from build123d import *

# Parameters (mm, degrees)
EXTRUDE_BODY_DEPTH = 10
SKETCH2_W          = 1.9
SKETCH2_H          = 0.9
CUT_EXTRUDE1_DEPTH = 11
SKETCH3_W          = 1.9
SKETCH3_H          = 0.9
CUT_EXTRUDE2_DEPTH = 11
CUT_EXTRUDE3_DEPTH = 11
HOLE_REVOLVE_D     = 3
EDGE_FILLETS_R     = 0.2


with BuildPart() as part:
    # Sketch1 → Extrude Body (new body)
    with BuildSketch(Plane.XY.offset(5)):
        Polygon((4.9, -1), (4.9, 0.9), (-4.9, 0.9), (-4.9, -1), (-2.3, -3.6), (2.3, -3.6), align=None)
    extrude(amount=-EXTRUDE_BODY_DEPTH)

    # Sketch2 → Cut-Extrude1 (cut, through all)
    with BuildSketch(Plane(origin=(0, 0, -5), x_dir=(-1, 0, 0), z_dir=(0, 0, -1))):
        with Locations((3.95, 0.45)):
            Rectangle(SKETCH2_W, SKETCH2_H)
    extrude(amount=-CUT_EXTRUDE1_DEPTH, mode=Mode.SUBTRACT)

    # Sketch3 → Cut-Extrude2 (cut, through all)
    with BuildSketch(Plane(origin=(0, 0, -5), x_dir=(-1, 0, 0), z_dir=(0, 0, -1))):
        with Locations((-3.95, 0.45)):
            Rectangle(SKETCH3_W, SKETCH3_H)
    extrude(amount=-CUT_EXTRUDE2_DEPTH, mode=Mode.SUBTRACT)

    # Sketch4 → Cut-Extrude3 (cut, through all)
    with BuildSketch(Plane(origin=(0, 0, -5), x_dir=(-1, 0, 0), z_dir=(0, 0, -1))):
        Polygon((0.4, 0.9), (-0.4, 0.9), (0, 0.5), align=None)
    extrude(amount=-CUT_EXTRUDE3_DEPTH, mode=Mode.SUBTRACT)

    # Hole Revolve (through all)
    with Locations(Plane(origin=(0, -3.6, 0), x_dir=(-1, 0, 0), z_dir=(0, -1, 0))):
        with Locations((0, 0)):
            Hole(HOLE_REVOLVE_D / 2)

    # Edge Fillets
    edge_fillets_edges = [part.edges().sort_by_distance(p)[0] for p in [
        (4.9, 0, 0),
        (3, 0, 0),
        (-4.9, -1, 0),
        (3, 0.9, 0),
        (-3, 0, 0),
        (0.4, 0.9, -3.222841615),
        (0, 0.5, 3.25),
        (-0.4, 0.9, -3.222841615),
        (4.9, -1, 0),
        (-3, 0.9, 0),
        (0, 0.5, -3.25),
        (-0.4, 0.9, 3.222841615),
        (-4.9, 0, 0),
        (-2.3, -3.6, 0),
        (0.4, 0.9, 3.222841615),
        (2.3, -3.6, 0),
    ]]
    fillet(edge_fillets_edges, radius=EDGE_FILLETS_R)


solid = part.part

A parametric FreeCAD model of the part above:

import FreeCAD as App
import Part
import Sketcher


def edges_at(feature, points):
    """Names of the edges that pass closest to the given points."""
    edges = feature.Shape.Edges
    near = lambda p: min(range(len(edges)), key=lambda i: edges[i].distToShape(Part.Vertex(*p))[0])
    return sorted({f"Edge{near(p) + 1}" for p in points})

doc = App.newDocument("Part")
body = doc.addObject("PartDesign::Body", "Body")

# Sketch on XY plane
sketch1 = body.newObject("Sketcher::SketchObject", "Sketch")
sketch1.AttachmentSupport = (doc.getObject("XY_Plane"), [""])
sketch1.MapMode = "FlatFace"
sketch1.AttachmentOffset = App.Placement(App.Vector(0, 0, 5), App.Rotation())
sketch1.addGeometry(Part.LineSegment(App.Vector(4.9, -1, 0), App.Vector(4.9, 0.9, 0)), False)
sketch1.addGeometry(Part.LineSegment(App.Vector(4.9, 0.9, 0), App.Vector(-4.9, 0.9, 0)), False)
sketch1.addGeometry(Part.LineSegment(App.Vector(-4.9, 0.9, 0), App.Vector(-4.9, -1, 0)), False)
sketch1.addGeometry(Part.LineSegment(App.Vector(-4.9, -1, 0), App.Vector(-2.3, -3.6, 0)), False)
sketch1.addGeometry(Part.LineSegment(App.Vector(-2.3, -3.6, 0), App.Vector(2.3, -3.6, 0)), False)
sketch1.addGeometry(Part.LineSegment(App.Vector(2.3, -3.6, 0), App.Vector(4.9, -1, 0)), False)
sketch1.addConstraint(Sketcher.Constraint("Coincident", 0, 2, 1, 1))
sketch1.addConstraint(Sketcher.Constraint("Coincident", 1, 2, 2, 1))
sketch1.addConstraint(Sketcher.Constraint("Coincident", 2, 2, 3, 1))
sketch1.addConstraint(Sketcher.Constraint("Coincident", 3, 2, 4, 1))
sketch1.addConstraint(Sketcher.Constraint("Coincident", 4, 2, 5, 1))
sketch1.addConstraint(Sketcher.Constraint("Coincident", 5, 2, 0, 1))
sketch1.addConstraint(Sketcher.Constraint("Vertical", 0))
sketch1.addConstraint(Sketcher.Constraint("Horizontal", 1))
sketch1.addConstraint(Sketcher.Constraint("Vertical", 2))
sketch1.addConstraint(Sketcher.Constraint("Horizontal", 4))
sketch1.addConstraint(Sketcher.Constraint("Symmetric", 2, 2, 5, 2, -2))
sketch1.addConstraint(Sketcher.Constraint("Perpendicular", 3, 5))
sketch1.addConstraint(Sketcher.Constraint("Equal", 3, 5))
sketch1.addConstraint(Sketcher.Constraint("DistanceX", 1, 2, 1, 1, 9.8))
sketch1.addConstraint(Sketcher.Constraint("DistanceX", 4, 1, 4, 2, 4.6))
sketch1.addConstraint(Sketcher.Constraint("DistanceY", 0, 1, 0, 2, 1.9))
sketch1.addConstraint(Sketcher.Constraint("DistanceY", 2, 2, -1, 1, 1.0))
pad1 = body.newObject("PartDesign::Pad", "Pad")
pad1.Profile = sketch1
pad1.Length = 10
pad1.Reversed = True

# Sketch on XY plane
sketch2 = body.newObject("Sketcher::SketchObject", "Sketch001")
sketch2.AttachmentSupport = (doc.getObject("XY_Plane"), [""])
sketch2.MapMode = "FlatFace"
sketch2.AttachmentOffset = App.Placement(App.Vector(0, 0, -5), App.Rotation())
sketch2.addGeometry(Part.LineSegment(App.Vector(-3, 0.9, 0), App.Vector(-3, 0, 0)), False)
sketch2.addGeometry(Part.LineSegment(App.Vector(-3, 0, 0), App.Vector(-4.9, 0, 0)), False)
sketch2.addGeometry(Part.LineSegment(App.Vector(-4.9, 0, 0), App.Vector(-4.9, 0.9, 0)), False)
sketch2.addGeometry(Part.LineSegment(App.Vector(-4.9, 0.9, 0), App.Vector(-3, 0.9, 0)), False)
sketch2.addConstraint(Sketcher.Constraint("Coincident", 0, 2, 1, 1))
sketch2.addConstraint(Sketcher.Constraint("Coincident", 1, 2, 2, 1))
sketch2.addConstraint(Sketcher.Constraint("Coincident", 2, 2, 3, 1))
sketch2.addConstraint(Sketcher.Constraint("Coincident", 3, 2, 0, 1))
sketch2.addConstraint(Sketcher.Constraint("Vertical", 0))
sketch2.addConstraint(Sketcher.Constraint("Horizontal", 1))
sketch2.addConstraint(Sketcher.Constraint("Vertical", 2))
sketch2.addConstraint(Sketcher.Constraint("Horizontal", 3))
sketch2.addConstraint(Sketcher.Constraint("PointOnObject", 0, 2, -1))
sketch2.addConstraint(Sketcher.Constraint("DistanceX", 1, 2, 1, 1, 1.9))
sketch2.addConstraint(Sketcher.Constraint("DistanceY", 0, 2, 0, 1, 0.9))
sketch2.addConstraint(Sketcher.Constraint("DistanceX", 0, 2, -1, 1, 3.0))
pocket1 = body.newObject("PartDesign::Pocket", "Pocket")
pocket1.Profile = sketch2
pocket1.Type = "ThroughAll"
pocket1.Reversed = True

# Sketch on XY plane
sketch3 = body.newObject("Sketcher::SketchObject", "Sketch002")
sketch3.AttachmentSupport = (doc.getObject("XY_Plane"), [""])
sketch3.MapMode = "FlatFace"
sketch3.AttachmentOffset = App.Placement(App.Vector(0, 0, -5), App.Rotation())
sketch3.addGeometry(Part.LineSegment(App.Vector(4.9, 0.9, 0), App.Vector(4.9, 0, 0)), False)
sketch3.addGeometry(Part.LineSegment(App.Vector(4.9, 0, 0), App.Vector(3, 0, 0)), False)
sketch3.addGeometry(Part.LineSegment(App.Vector(3, 0, 0), App.Vector(3, 0.9, 0)), False)
sketch3.addGeometry(Part.LineSegment(App.Vector(3, 0.9, 0), App.Vector(4.9, 0.9, 0)), False)
sketch3.addConstraint(Sketcher.Constraint("Coincident", 0, 2, 1, 1))
sketch3.addConstraint(Sketcher.Constraint("Coincident", 1, 2, 2, 1))
sketch3.addConstraint(Sketcher.Constraint("Coincident", 2, 2, 3, 1))
sketch3.addConstraint(Sketcher.Constraint("Coincident", 3, 2, 0, 1))
sketch3.addConstraint(Sketcher.Constraint("Vertical", 0))
sketch3.addConstraint(Sketcher.Constraint("Horizontal", 1))
sketch3.addConstraint(Sketcher.Constraint("Vertical", 2))
sketch3.addConstraint(Sketcher.Constraint("Horizontal", 3))
sketch3.addConstraint(Sketcher.Constraint("PointOnObject", 0, 2, -1))
sketch3.addConstraint(Sketcher.Constraint("DistanceX", 1, 2, 1, 1, 1.9))
sketch3.addConstraint(Sketcher.Constraint("DistanceY", 0, 2, 0, 1, 0.9))
sketch3.addConstraint(Sketcher.Constraint("DistanceX", -1, 1, 1, 2, 3.0))
pocket2 = body.newObject("PartDesign::Pocket", "Pocket001")
pocket2.Profile = sketch3
pocket2.Type = "ThroughAll"
pocket2.Reversed = True

# Sketch on XY plane
sketch4 = body.newObject("Sketcher::SketchObject", "Sketch003")
sketch4.AttachmentSupport = (doc.getObject("XY_Plane"), [""])
sketch4.MapMode = "FlatFace"
sketch4.AttachmentOffset = App.Placement(App.Vector(0, 0, -5), App.Rotation())
sketch4.addGeometry(Part.LineSegment(App.Vector(-0.4, 0.9, 0), App.Vector(0.4, 0.9, 0)), False)
sketch4.addGeometry(Part.LineSegment(App.Vector(0.4, 0.9, 0), App.Vector(0, 0.5, 0)), False)
sketch4.addGeometry(Part.LineSegment(App.Vector(0, 0.5, 0), App.Vector(-0.4, 0.9, 0)), False)
sketch4.addConstraint(Sketcher.Constraint("Coincident", 0, 2, 1, 1))
sketch4.addConstraint(Sketcher.Constraint("Coincident", 1, 2, 2, 1))
sketch4.addConstraint(Sketcher.Constraint("Coincident", 2, 2, 0, 1))
sketch4.addConstraint(Sketcher.Constraint("Horizontal", 0))
sketch4.addConstraint(Sketcher.Constraint("PointOnObject", 1, 2, -2))
sketch4.addConstraint(Sketcher.Constraint("Perpendicular", 1, 2))
sketch4.addConstraint(Sketcher.Constraint("Equal", 1, 2))
sketch4.addConstraint(Sketcher.Constraint("DistanceX", 0, 1, 0, 2, 0.8))
sketch4.addConstraint(Sketcher.Constraint("DistanceY", -1, 1, 0, 2, 0.9))
pocket3 = body.newObject("PartDesign::Pocket", "Pocket002")
pocket3.Profile = sketch4
pocket3.Type = "ThroughAll"
pocket3.Reversed = True

# Sketch on XZ plane
sketch5 = body.newObject("Sketcher::SketchObject", "Sketch004")
sketch5.AttachmentSupport = (doc.getObject("XZ_Plane"), [""])
sketch5.MapMode = "FlatFace"
sketch5.AttachmentOffset = App.Placement(App.Vector(0, 0, 3.6), App.Rotation())
sketch5.addGeometry(Part.Circle(App.Vector(0, 0, 0), App.Vector(0, 0, 1), 1.5), False)
sketch5.addConstraint(Sketcher.Constraint("Coincident", 0, 3, -1, 1))
sketch5.addConstraint(Sketcher.Constraint("Diameter", 0, 3.0))
doc.recompute()
hole = body.newObject("PartDesign::Hole", "Hole")
hole.Profile = sketch5
hole.ThreadType = "None"
hole.Diameter = 3
hole.DepthType = "ThroughAll"
doc.recompute()

fillet = body.newObject("PartDesign::Fillet", "Fillet")
fillet.Base = (hole, edges_at(hole, [
    (4.9, 0, 0),
    (3, 0, 0),
    (-4.9, -1, 0),
    (3, 0.9, 0),
    (-3, 0, 0),
    (0.4, 0.9, -3.223),
    (0, 0.5, 3.25),
    (-0.4, 0.9, -3.223),
    (4.9, -1, 0),
    (-3, 0.9, 0),
    (0, 0.5, -3.25),
    (-0.4, 0.9, 3.223),
    (-4.9, 0, 0),
    (-2.3, -3.6, 0),
    (0.4, 0.9, 3.223),
    (2.3, -3.6, 0),
]))
fillet.Radius = 0.2

doc.recompute()
